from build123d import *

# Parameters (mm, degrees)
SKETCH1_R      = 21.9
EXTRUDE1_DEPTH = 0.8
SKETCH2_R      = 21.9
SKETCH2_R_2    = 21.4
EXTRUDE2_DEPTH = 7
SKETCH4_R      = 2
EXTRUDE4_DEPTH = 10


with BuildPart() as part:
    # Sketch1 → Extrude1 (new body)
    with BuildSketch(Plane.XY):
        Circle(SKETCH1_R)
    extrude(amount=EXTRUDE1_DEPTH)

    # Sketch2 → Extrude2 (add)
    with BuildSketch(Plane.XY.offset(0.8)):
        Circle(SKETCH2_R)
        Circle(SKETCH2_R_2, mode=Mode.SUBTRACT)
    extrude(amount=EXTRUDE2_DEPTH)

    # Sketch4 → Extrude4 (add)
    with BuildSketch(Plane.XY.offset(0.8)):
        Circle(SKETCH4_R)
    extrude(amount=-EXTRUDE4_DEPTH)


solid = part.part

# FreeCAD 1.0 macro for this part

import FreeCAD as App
import Part
import Sketcher

V = App.Vector
Q = App.Units.Quantity

doc = App.newDocument("Part")
body = doc.addObject("PartDesign::Body", "Body")

sketch1 = body.newObject("Sketcher::SketchObject", "Sketch")
sketch1.AttachmentSupport = (doc.getObject("XY_Plane"), [""])
sketch1.MapMode = "FlatFace"
sketch1.addGeometry(Part.Circle(V(0, 0, 0), V(0, 0, 1), 21.9), False)
sketch1.addConstraint(Sketcher.Constraint("Coincident", 0, 3, -1, 1))
sketch1.addConstraint(Sketcher.Constraint("Diameter", 0, Q("43.8 mm")))
pad1 = body.newObject("PartDesign::Pad", "Pad")
pad1.Profile = sketch1
pad1.Length = 0.8

sketch2 = body.newObject("Sketcher::SketchObject", "Sketch001")
sketch2.AttachmentSupport = (doc.getObject("XY_Plane"), [""])
sketch2.MapMode = "FlatFace"
sketch2.AttachmentOffset = App.Placement(V(0, 0, 0.8), App.Rotation())
sketch2.addGeometry(Part.Circle(V(0, 0, 0), V(0, 0, 1), 21.9), False)
sketch2.addGeometry(Part.Circle(V(0, 0, 0), V(0, 0, 1), 21.4), False)
sketch2.addConstraint(Sketcher.Constraint("Coincident", 0, 3, -1, 1))
sketch2.addConstraint(Sketcher.Constraint("Coincident", 1, 3, -1, 1))
sketch2.addConstraint(Sketcher.Constraint("Diameter", 0, Q("43.8 mm")))
sketch2.addConstraint(Sketcher.Constraint("Diameter", 1, Q("42.8 mm")))
pad2 = body.newObject("PartDesign::Pad", "Pad001")
pad2.Profile = sketch2
pad2.Length = 7

sketch3 = body.newObject("Sketcher::SketchObject", "Sketch002")
sketch3.AttachmentSupport = (doc.getObject("XY_Plane"), [""])
sketch3.MapMode = "FlatFace"
sketch3.AttachmentOffset = App.Placement(V(0, 0, 0.8), App.Rotation())
sketch3.addGeometry(Part.Circle(V(0, 0, 0), V(0, 0, 1), 2), False)
sketch3.addConstraint(Sketcher.Constraint("Coincident", 0, 3, -1, 1))
sketch3.addConstraint(Sketcher.Constraint("Diameter", 0, Q("4 mm")))
pad3 = body.newObject("PartDesign::Pad", "Pad002")
pad3.Profile = sketch3
pad3.Length = 10
pad3.Reversed = True

doc.recompute()
